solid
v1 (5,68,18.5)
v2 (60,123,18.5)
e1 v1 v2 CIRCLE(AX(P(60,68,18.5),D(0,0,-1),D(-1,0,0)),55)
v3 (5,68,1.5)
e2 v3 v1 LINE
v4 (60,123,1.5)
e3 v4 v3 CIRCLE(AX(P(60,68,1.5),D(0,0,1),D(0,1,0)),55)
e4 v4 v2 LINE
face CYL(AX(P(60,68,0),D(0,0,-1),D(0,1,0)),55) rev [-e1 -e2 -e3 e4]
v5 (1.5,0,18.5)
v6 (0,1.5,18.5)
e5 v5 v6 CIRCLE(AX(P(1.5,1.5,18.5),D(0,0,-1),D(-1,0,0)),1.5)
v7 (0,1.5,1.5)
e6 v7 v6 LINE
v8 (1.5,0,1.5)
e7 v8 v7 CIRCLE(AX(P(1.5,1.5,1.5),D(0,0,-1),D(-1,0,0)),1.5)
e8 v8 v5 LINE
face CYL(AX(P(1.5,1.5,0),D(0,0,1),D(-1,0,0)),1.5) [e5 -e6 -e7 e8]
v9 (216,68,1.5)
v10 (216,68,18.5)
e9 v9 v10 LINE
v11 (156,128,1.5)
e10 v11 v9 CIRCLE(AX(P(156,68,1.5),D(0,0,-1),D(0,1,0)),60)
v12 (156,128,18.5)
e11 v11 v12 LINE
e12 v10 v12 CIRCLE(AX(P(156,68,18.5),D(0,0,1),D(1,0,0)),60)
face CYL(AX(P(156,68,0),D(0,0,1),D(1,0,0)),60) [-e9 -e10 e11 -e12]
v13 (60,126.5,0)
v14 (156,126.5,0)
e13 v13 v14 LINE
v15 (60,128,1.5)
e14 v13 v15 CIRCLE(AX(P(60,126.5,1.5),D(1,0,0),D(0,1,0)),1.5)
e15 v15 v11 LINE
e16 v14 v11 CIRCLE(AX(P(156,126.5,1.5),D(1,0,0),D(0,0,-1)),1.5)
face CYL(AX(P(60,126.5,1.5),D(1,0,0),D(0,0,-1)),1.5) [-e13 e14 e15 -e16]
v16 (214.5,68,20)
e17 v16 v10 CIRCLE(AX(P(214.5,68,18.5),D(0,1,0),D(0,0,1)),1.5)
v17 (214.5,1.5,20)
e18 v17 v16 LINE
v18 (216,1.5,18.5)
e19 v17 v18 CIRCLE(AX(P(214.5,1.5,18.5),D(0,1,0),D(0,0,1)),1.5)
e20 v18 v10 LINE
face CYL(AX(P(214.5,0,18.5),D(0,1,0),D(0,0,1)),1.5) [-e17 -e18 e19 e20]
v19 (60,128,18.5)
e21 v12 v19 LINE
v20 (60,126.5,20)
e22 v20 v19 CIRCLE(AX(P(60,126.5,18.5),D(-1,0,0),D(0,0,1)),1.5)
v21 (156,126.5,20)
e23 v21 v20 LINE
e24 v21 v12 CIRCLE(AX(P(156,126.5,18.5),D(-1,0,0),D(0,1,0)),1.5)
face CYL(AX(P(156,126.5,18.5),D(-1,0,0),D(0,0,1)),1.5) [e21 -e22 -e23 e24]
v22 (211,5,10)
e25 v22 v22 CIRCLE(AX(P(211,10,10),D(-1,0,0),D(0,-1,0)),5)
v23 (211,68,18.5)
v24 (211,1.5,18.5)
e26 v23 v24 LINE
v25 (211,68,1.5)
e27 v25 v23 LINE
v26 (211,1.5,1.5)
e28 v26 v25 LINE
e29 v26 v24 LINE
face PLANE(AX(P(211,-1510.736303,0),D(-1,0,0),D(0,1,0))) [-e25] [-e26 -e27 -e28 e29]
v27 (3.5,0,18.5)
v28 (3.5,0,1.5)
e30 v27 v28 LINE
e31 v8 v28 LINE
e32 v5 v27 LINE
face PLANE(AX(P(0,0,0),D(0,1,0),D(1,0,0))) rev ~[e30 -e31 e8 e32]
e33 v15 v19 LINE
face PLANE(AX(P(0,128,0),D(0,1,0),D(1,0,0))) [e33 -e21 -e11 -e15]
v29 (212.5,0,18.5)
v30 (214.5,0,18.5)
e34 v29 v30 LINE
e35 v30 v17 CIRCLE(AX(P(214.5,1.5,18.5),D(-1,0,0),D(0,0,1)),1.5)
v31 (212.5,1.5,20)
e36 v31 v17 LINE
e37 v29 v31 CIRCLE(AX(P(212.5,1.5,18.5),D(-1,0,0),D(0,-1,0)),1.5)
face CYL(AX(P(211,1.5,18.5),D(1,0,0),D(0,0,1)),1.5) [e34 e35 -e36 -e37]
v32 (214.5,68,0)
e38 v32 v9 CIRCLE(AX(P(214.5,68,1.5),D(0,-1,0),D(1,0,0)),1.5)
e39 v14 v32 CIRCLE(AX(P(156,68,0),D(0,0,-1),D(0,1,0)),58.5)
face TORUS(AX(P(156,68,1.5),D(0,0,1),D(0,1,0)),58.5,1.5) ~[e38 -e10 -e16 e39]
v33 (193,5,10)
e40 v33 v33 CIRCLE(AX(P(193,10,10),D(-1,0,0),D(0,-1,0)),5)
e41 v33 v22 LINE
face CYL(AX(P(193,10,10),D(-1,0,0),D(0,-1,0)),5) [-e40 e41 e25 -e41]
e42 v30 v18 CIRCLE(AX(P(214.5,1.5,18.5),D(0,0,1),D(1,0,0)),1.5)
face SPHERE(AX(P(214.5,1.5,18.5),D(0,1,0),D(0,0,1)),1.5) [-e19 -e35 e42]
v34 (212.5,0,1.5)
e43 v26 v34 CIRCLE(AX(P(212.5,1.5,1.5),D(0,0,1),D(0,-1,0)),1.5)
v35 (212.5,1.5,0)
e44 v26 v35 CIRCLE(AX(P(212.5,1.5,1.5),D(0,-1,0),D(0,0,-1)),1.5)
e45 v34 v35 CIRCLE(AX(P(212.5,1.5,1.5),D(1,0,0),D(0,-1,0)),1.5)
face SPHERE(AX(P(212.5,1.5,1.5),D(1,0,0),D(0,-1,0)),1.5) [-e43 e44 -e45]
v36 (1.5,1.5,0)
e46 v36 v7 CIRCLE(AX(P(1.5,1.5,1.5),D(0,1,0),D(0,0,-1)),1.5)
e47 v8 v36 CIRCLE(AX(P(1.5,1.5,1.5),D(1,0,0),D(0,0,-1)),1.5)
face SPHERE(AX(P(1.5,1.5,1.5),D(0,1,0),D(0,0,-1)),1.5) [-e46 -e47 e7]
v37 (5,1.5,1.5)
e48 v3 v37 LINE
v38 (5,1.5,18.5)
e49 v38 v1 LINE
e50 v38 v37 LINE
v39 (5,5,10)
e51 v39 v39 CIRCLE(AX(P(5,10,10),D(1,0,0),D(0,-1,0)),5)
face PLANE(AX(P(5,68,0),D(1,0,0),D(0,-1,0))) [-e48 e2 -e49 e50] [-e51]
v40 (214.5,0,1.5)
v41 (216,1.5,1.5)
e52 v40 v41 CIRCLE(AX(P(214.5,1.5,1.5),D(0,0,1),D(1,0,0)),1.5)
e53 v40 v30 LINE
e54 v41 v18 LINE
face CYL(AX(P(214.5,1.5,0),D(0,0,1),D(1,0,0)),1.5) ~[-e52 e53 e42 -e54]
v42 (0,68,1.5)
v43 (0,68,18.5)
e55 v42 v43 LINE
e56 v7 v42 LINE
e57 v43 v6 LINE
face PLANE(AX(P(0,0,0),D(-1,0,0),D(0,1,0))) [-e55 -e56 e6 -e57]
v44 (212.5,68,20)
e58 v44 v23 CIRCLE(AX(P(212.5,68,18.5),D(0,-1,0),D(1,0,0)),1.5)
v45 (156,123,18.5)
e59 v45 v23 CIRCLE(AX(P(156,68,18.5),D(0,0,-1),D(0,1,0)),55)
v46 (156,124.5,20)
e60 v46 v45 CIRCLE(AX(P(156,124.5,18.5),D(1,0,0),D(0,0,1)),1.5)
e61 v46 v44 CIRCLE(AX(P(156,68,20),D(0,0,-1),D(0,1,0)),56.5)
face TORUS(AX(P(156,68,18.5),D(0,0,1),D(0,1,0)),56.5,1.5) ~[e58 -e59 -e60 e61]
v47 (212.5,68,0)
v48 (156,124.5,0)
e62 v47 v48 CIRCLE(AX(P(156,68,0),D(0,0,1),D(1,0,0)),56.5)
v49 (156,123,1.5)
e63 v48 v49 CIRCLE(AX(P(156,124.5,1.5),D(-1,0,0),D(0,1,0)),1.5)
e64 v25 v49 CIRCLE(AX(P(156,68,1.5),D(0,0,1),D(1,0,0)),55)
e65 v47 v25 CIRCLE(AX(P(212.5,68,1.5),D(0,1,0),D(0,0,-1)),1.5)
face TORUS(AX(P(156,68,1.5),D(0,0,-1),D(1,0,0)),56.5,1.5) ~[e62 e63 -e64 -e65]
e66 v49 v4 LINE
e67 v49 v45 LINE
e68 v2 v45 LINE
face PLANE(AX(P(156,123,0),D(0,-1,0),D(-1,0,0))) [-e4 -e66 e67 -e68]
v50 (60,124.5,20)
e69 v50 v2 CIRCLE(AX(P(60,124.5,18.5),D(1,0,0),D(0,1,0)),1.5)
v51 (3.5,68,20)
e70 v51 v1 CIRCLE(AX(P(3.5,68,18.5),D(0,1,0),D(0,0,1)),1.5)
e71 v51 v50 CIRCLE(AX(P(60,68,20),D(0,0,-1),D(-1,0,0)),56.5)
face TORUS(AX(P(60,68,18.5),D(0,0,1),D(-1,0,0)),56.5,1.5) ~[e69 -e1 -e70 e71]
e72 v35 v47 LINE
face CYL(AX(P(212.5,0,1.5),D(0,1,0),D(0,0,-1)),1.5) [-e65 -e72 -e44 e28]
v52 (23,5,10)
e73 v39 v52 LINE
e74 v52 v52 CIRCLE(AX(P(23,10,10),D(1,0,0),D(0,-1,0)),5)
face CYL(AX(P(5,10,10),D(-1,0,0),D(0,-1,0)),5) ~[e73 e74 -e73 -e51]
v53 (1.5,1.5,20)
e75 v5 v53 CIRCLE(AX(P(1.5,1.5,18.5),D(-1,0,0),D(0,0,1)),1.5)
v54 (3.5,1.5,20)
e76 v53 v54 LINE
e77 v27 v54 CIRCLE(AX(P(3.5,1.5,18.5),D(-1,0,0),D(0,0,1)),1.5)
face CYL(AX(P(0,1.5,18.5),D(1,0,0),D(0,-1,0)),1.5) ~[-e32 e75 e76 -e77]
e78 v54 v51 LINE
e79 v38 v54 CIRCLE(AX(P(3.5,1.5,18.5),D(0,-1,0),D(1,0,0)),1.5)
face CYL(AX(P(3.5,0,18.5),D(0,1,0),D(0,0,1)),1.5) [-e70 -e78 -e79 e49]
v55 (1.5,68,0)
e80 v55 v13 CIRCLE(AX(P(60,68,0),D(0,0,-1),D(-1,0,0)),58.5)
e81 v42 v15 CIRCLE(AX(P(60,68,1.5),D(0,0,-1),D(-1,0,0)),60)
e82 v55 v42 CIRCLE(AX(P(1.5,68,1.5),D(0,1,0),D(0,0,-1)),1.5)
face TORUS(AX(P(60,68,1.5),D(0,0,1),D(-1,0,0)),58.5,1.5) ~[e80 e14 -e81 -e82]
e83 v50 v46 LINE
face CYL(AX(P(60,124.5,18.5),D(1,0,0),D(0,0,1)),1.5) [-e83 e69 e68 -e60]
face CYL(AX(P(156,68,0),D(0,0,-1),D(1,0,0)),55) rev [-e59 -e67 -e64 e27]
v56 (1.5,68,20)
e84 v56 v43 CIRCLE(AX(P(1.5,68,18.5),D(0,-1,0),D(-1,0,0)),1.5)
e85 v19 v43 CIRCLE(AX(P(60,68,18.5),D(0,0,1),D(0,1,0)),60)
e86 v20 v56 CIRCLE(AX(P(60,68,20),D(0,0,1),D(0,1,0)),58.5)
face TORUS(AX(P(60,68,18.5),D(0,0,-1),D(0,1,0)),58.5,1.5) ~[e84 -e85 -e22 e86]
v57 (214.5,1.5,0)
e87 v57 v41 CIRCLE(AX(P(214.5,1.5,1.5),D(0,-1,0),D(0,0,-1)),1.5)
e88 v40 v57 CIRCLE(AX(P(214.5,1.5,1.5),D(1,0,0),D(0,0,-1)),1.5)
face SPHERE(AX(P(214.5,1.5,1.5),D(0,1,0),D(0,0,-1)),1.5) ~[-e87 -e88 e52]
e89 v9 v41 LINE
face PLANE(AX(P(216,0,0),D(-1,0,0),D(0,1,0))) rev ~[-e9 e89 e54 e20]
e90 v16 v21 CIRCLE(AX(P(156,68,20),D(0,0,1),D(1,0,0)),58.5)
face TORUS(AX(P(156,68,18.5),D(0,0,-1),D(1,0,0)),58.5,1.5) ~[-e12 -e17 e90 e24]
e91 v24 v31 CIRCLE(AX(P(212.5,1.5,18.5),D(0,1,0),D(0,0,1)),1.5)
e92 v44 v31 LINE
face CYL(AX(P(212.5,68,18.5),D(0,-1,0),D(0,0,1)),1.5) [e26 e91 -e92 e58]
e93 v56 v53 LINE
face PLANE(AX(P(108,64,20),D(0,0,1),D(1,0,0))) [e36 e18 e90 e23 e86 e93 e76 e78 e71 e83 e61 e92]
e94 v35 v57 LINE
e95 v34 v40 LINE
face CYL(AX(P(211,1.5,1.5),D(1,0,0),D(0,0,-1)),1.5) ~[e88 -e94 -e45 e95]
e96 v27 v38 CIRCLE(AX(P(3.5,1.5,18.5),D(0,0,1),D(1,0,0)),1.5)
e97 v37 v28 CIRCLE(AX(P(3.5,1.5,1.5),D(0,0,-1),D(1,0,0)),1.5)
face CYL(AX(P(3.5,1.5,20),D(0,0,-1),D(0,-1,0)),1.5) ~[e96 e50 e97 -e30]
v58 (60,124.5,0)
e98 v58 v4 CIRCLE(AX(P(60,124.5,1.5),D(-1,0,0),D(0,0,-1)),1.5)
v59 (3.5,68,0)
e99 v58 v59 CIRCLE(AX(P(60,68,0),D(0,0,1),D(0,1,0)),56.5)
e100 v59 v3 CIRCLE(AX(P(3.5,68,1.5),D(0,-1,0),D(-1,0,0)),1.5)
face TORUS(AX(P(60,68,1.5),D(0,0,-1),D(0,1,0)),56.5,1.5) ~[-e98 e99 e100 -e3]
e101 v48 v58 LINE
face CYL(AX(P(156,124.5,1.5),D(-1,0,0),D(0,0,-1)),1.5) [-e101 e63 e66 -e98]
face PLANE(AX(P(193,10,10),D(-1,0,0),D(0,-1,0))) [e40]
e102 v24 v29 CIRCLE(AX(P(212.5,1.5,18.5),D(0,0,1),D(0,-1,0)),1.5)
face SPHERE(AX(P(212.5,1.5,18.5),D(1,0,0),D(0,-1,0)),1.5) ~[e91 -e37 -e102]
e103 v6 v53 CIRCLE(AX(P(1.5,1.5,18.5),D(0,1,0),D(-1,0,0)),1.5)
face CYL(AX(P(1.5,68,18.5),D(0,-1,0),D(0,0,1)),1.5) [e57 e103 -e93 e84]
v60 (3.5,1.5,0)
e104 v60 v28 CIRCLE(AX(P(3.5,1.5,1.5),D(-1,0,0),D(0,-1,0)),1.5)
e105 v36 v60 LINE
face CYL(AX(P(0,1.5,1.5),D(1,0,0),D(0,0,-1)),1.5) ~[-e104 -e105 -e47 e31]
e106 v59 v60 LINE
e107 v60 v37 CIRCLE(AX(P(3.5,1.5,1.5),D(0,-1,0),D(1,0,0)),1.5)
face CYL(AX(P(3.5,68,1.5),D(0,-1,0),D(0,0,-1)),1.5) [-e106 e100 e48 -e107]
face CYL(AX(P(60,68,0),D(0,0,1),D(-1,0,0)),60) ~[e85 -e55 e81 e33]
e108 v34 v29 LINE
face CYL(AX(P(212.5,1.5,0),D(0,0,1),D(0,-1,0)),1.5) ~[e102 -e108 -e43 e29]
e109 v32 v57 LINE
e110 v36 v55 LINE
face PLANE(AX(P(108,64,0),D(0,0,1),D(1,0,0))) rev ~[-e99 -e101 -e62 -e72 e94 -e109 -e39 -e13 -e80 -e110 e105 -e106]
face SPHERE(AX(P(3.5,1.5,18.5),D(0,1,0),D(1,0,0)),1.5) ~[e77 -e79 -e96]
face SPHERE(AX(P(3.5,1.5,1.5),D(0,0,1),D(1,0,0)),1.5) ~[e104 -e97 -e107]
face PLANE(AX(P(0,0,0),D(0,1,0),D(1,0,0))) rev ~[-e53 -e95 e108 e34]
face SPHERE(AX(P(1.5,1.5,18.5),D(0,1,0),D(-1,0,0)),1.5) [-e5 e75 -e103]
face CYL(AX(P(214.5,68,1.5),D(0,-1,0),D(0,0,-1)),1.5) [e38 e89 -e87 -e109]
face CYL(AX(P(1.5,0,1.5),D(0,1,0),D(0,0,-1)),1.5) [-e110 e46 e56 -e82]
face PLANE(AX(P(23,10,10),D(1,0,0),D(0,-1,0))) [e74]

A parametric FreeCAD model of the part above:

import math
import FreeCAD as App
import Part
import Sketcher

V = App.Vector


def edges_at(feature, points):
    """Names of the edges that pass closest to the given points."""
    edges = feature.Shape.Edges
    near = lambda p: min(range(len(edges)), key=lambda i: edges[i].distToShape(Part.Vertex(*p))[0])
    return sorted({f"Edge{near(p) + 1}" for p in points})

doc = App.newDocument("Part")
body = doc.addObject("PartDesign::Body", "Body")

sketch1 = body.newObject("Sketcher::SketchObject", "Sketch")
sketch1.AttachmentSupport = (doc.getObject("XY_Plane"), [""])
sketch1.MapMode = "FlatFace"
sketch1.addGeometry(Part.LineSegment(V(0, 128, 0), V(0, 0, 0)), False)
sketch1.addGeometry(Part.LineSegment(V(0, 0, 0), V(216, 0, 0)), False)
sketch1.addGeometry(Part.LineSegment(V(216, 0, 0), V(216, 128, 0)), False)
sketch1.addGeometry(Part.LineSegment(V(216, 128, 0), V(0, 128, 0)), False)
sketch1.addConstraint(Sketcher.Constraint("Coincident", 0, 2, 1, 1))
sketch1.addConstraint(Sketcher.Constraint("Coincident", 1, 2, 2, 1))
sketch1.addConstraint(Sketcher.Constraint("Coincident", 2, 2, 3, 1))
sketch1.addConstraint(Sketcher.Constraint("Coincident", 3, 2, 0, 1))
sketch1.addConstraint(Sketcher.Constraint("Vertical", 0))
sketch1.addConstraint(Sketcher.Constraint("Horizontal", 1))
sketch1.addConstraint(Sketcher.Constraint("Vertical", 2))
sketch1.addConstraint(Sketcher.Constraint("Horizontal", 3))
sketch1.addConstraint(Sketcher.Constraint("Coincident", 0, 2, -1, 1))
sketch1.addConstraint(Sketcher.Constraint("DistanceX", 1, 1, 1, 2, 216.0))
sketch1.addConstraint(Sketcher.Constraint("DistanceY", 0, 2, 0, 1, 128.0))
pad1 = body.newObject("PartDesign::Pad", "Pad")
pad1.Profile = sketch1
pad1.Length = 20
doc.recompute()

fillet = body.newObject("PartDesign::Fillet", "Fillet")
fillet.Base = (pad1, edges_at(pad1, [(0, 128, 10), (216, 128, 10)]))
fillet.Radius = 60

sketch2 = body.newObject("Sketcher::SketchObject", "Sketch001")
sketch2.AttachmentSupport = (doc.getObject("XY_Plane"), [""])
sketch2.MapMode = "FlatFace"
sketch2.AttachmentOffset = App.Placement(V(0, 0, 20), App.Rotation())
sketch2.addGeometry(Part.ArcOfCircle(Part.Circle(V(156, 68, 0), V(0, 0, 1), 55), math.radians(0), math.radians(90)), False)
sketch2.addGeometry(Part.LineSegment(V(156, 123, 0), V(60, 123, 0)), False)
sketch2.addGeometry(Part.ArcOfCircle(Part.Circle(V(60, 68, 0), V(0, 0, 1), 55), math.radians(90), math.radians(180)), False)
sketch2.addGeometry(Part.LineSegment(V(5, 68, 0), V(5, -1511, 0)), False)
sketch2.addGeometry(Part.LineSegment(V(5, -1511, 0), V(211, -1511, 0)), False)
sketch2.addGeometry(Part.LineSegment(V(211, -1511, 0), V(211, 68, 0)), False)
sketch2.addConstraint(Sketcher.Constraint("Tangent", 0, 2, 1, 1))
sketch2.addConstraint(Sketcher.Constraint("Tangent", 1, 2, 2, 1))
sketch2.addConstraint(Sketcher.Constraint("Tangent", 2, 2, 3, 1))
sketch2.addConstraint(Sketcher.Constraint("Coincident", 3, 2, 4, 1))
sketch2.addConstraint(Sketcher.Constraint("Coincident", 4, 2, 5, 1))
sketch2.addConstraint(Sketcher.Constraint("Tangent", 5, 2, 0, 1))
sketch2.addConstraint(Sketcher.Constraint("Horizontal", 1))
sketch2.addConstraint(Sketcher.Constraint("Vertical", 3))
sketch2.addConstraint(Sketcher.Constraint("Horizontal", 4))
sketch2.addConstraint(Sketcher.Constraint("Vertical", 5))
sketch2.addConstraint(Sketcher.Constraint("Equal", 0, 2))
sketch2.addConstraint(Sketcher.Constraint("Radius", 0, 55.0))
sketch2.addConstraint(Sketcher.Constraint("DistanceX", 1, 2, 1, 1, 96.0))
sketch2.addConstraint(Sketcher.Constraint("DistanceX", -1, 1, 0, 3, 156.0))
sketch2.addConstraint(Sketcher.Constraint("DistanceY", -1, 1, 0, 3, 68.0))
sketch2.addConstraint(Sketcher.Constraint("DistanceY", 3, 2, 3, 1, 1578.736303))
pocket1 = body.newObject("PartDesign::Pocket", "Pocket")
pocket1.Profile = sketch2
pocket1.Type = "ThroughAll"
pocket1.Midplane = True

sketch3 = body.newObject("Sketcher::SketchObject", "Sketch002")
sketch3.AttachmentSupport = (doc.getObject("YZ_Plane"), [""])
sketch3.MapMode = "FlatFace"
sketch3.AttachmentOffset = App.Placement(V(0, 0, 5), App.Rotation())
sketch3.addGeometry(Part.Circle(V(10, 10, 0), V(0, 0, 1), 5), False)
sketch3.addConstraint(Sketcher.Constraint("Diameter", 0, 10.0))
sketch3.addConstraint(Sketcher.Constraint("DistanceX", -1, 1, 0, 3, 10.0))
sketch3.addConstraint(Sketcher.Constraint("DistanceY", -1, 1, 0, 3, 10.0))
pad2 = body.newObject("PartDesign::Pad", "Pad001")
pad2.Profile = sketch3
pad2.Length = 18

sketch4 = body.newObject("Sketcher::SketchObject", "Sketch003")
sketch4.AttachmentSupport = (doc.getObject("YZ_Plane"), [""])
sketch4.MapMode = "FlatFace"
sketch4.AttachmentOffset = App.Placement(V(0, 0, 193), App.Rotation())
sketch4.addGeometry(Part.Circle(V(10, 10, 0), V(0, 0, 1), 5), False)
sketch4.addConstraint(Sketcher.Constraint("Diameter", 0, 10.0))
sketch4.addConstraint(Sketcher.Constraint("DistanceX", -1, 1, 0, 3, 10.0))
sketch4.addConstraint(Sketcher.Constraint("DistanceY", -1, 1, 0, 3, 10.0))
pad3 = body.newObject("PartDesign::Pad", "Pad002")
pad3.Profile = sketch4
pad3.Length = 18
doc.recompute()

fillet2 = body.newObject("PartDesign::Fillet", "Fillet001")
fillet2.Base = (pad3, edges_at(pad3, [
    (216, 34, 20),
    (108, 128, 0),
    (108, 128, 20),
    (0, 34, 0),
    (17.574, 110.426, 0),
    (198.426, 110.426, 0),
    (0, 34, 20),
    (17.574, 110.426, 20),
    (198.426, 110.426, 20),
    (213.5, 0, 0),
    (213.5, 0, 20),
    (211, 0, 10),
    (211, 34, 20),
    (194.891, 106.891, 20),
    (108, 123, 20),
    (21.109, 106.891, 20),
    (5, 34, 20),
    (5, 0, 10),
    (5, 34, 0),
    (211, 34, 0),
    (194.891, 106.891, 0),
    (108, 123, 0),
    (21.109, 106.891, 0),
    (216, 34, 0),
    (2.5, 0, 0),
    (216, 0, 10),
    (0, 0, 10),
    (2.5, 0, 20),
]))
fillet2.Radius = 1.5

doc.recompute()
